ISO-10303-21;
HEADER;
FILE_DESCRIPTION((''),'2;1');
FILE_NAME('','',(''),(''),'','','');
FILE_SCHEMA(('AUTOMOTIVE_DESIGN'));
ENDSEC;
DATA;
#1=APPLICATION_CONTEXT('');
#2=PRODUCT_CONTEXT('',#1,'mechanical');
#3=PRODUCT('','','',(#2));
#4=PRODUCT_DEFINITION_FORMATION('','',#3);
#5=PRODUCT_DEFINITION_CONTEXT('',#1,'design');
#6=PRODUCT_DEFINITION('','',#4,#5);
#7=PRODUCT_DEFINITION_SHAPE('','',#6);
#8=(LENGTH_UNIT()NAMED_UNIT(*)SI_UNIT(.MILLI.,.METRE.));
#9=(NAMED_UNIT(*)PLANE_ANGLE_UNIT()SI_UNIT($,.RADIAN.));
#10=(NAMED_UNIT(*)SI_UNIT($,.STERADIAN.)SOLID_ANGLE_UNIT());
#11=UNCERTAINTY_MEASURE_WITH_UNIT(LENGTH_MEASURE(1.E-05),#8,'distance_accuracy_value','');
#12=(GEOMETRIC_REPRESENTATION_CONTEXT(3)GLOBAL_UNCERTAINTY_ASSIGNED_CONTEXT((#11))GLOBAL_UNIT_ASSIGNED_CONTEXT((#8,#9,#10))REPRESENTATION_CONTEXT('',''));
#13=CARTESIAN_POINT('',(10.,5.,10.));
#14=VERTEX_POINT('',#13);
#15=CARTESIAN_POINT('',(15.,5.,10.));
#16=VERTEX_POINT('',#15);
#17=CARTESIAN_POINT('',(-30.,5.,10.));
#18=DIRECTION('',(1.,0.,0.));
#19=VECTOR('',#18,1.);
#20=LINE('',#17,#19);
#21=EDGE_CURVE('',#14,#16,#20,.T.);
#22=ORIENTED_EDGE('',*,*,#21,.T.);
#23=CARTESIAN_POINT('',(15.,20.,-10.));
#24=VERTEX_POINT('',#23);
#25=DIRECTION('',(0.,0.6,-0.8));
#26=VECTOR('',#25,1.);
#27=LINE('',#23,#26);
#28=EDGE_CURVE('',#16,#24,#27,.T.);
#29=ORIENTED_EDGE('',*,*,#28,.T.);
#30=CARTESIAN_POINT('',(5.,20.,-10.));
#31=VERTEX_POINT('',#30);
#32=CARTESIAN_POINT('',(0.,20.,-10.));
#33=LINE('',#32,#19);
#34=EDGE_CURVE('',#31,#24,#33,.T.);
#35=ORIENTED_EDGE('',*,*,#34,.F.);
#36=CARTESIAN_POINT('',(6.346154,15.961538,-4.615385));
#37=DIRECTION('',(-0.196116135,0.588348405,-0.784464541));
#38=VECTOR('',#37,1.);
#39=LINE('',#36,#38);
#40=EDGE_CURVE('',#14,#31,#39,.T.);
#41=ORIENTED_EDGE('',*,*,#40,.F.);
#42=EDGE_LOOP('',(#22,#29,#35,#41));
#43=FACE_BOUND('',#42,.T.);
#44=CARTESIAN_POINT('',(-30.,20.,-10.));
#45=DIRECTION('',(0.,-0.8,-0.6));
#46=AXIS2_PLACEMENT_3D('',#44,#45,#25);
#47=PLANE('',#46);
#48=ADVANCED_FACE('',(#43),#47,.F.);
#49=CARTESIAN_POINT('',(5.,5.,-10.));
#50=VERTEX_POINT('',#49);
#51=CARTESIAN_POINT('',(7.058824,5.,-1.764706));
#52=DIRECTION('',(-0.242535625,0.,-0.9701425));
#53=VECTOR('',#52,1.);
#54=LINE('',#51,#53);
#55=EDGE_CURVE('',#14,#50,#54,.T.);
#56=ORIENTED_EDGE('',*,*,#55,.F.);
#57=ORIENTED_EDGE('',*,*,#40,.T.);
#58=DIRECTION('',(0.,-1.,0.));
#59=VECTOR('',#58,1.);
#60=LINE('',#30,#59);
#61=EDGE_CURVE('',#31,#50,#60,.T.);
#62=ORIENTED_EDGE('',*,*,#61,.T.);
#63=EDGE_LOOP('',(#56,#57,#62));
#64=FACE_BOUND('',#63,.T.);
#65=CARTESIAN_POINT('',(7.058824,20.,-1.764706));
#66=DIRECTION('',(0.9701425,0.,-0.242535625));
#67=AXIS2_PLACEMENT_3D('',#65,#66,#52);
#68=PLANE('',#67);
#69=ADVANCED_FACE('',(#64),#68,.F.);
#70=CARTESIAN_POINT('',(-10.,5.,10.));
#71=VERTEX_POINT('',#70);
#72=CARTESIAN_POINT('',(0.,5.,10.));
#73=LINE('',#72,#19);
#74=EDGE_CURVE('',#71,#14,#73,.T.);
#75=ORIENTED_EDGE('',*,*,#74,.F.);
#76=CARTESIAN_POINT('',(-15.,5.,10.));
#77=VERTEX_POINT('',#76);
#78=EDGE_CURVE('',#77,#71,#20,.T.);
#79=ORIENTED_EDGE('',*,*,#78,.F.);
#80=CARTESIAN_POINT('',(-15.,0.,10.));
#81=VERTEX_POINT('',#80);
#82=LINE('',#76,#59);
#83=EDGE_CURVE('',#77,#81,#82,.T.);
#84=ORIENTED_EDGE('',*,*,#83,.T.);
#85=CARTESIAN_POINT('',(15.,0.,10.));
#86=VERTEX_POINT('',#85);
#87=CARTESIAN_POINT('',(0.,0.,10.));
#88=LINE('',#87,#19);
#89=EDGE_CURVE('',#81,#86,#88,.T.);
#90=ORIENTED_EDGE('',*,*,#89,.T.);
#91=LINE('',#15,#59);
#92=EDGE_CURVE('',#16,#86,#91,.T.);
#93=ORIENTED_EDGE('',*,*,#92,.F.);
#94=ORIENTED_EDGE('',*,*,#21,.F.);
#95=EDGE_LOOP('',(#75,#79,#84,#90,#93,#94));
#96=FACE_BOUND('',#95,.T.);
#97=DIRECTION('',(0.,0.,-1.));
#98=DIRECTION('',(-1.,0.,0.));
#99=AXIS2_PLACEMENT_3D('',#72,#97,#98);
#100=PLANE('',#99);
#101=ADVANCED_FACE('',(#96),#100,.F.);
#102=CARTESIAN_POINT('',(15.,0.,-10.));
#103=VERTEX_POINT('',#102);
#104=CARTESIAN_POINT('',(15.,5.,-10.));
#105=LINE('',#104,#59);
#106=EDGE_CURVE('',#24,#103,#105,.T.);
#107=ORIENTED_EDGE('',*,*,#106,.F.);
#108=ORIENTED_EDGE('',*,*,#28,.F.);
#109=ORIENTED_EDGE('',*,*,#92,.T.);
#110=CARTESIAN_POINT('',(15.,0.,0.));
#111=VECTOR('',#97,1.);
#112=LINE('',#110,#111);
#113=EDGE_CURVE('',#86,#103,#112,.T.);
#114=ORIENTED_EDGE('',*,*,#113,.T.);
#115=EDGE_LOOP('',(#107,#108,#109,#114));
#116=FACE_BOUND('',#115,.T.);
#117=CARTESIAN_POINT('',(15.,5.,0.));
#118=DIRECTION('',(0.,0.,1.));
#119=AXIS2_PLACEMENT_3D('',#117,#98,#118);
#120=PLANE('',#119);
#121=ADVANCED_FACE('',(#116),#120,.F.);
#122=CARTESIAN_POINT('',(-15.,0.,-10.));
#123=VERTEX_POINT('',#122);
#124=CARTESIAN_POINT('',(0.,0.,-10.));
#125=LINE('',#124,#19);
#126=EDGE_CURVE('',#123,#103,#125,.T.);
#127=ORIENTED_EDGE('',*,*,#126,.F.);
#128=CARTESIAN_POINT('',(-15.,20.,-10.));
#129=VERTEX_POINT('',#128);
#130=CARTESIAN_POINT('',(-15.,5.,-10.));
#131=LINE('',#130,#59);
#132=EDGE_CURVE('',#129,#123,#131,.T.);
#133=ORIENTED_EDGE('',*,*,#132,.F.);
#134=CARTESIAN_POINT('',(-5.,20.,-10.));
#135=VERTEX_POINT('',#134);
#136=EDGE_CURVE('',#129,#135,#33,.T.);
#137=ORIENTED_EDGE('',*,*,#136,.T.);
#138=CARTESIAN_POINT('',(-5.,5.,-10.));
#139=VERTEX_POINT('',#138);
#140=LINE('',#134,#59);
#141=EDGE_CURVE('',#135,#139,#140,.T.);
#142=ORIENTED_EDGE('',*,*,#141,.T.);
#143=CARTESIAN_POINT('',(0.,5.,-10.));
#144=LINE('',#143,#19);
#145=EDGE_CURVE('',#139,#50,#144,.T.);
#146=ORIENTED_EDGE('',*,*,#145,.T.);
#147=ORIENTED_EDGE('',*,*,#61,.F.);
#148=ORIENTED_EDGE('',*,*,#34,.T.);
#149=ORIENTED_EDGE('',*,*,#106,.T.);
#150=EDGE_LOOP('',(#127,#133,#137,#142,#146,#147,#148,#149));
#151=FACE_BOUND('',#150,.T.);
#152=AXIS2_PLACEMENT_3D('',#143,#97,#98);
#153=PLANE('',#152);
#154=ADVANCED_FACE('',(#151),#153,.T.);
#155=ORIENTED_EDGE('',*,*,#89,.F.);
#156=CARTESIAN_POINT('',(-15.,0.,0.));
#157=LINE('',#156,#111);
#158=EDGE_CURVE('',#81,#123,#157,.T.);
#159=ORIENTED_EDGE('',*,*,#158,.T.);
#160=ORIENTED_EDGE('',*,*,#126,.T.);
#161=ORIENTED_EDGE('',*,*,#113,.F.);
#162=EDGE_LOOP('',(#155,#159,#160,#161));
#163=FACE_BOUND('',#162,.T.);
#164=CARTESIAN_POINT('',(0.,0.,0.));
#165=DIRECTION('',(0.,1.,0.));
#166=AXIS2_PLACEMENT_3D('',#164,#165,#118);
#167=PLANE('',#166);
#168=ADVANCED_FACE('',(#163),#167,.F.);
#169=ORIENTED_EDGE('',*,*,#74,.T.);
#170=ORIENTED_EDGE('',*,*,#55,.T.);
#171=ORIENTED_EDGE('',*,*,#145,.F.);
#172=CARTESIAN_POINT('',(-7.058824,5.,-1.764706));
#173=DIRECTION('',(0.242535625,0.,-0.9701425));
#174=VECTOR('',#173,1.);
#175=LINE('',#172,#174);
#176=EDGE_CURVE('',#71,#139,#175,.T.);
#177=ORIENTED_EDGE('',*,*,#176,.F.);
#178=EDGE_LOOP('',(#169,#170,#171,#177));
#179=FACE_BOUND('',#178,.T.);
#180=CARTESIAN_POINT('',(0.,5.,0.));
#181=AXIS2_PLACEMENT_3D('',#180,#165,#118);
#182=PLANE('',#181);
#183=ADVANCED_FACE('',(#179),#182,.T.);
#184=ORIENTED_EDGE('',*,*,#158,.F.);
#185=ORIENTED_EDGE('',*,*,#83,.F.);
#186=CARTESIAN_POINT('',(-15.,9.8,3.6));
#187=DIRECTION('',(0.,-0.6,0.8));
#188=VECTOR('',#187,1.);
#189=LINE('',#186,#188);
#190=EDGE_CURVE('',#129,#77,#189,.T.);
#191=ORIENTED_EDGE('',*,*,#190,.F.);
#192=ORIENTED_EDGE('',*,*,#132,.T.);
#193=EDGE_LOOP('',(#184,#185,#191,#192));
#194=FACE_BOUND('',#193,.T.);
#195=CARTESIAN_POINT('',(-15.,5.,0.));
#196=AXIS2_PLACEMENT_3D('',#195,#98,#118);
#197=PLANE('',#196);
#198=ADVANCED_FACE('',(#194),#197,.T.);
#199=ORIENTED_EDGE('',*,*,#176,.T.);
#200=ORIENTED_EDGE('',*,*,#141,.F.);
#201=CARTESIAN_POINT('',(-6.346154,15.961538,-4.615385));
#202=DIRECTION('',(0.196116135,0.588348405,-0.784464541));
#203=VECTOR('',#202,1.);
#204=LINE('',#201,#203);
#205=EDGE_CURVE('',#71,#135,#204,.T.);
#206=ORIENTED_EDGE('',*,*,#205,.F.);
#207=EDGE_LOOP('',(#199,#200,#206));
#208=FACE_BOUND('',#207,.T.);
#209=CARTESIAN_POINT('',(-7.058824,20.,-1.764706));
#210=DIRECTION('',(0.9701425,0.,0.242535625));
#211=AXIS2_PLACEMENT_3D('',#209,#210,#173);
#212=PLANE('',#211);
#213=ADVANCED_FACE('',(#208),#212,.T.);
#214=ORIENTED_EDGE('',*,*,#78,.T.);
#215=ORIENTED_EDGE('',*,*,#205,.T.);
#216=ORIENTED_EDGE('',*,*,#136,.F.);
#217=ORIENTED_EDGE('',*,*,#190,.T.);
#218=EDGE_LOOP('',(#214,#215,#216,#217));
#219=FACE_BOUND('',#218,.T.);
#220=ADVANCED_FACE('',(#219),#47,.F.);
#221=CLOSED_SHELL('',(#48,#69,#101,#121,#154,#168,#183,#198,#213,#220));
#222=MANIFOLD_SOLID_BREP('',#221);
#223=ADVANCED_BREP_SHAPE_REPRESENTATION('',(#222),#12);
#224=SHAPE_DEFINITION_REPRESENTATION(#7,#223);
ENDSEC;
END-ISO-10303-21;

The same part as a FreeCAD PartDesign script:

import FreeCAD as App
import Part
import Sketcher
Q = App.Units.Quantity

doc = App.newDocument("Part")
body = doc.addObject("PartDesign::Body", "Body")

sketch1 = body.newObject("Sketcher::SketchObject", "Sketch")
sketch1.AttachmentSupport = (doc.getObject("XZ_Plane"), [""])
sketch1.MapMode = "FlatFace"
sketch1.addGeometry(Part.LineSegment(App.Vector(-15, -10, 0), App.Vector(-15, 10, 0)), False)
sketch1.addGeometry(Part.LineSegment(App.Vector(-15, 10, 0), App.Vector(15, 10, 0)), False)
sketch1.addGeometry(Part.LineSegment(App.Vector(15, 10, 0), App.Vector(15, -10, 0)), False)
sketch1.addGeometry(Part.LineSegment(App.Vector(15, -10, 0), App.Vector(-15, -10, 0)), False)
sketch1.addConstraint(Sketcher.Constraint("Coincident", 0, 2, 1, 1))
sketch1.addConstraint(Sketcher.Constraint("Coincident", 1, 2, 2, 1))
sketch1.addConstraint(Sketcher.Constraint("Coincident", 2, 2, 3, 1))
sketch1.addConstraint(Sketcher.Constraint("Coincident", 3, 2, 0, 1))
sketch1.addConstraint(Sketcher.Constraint("Vertical", 0))
sketch1.addConstraint(Sketcher.Constraint("Horizontal", 1))
sketch1.addConstraint(Sketcher.Constraint("Vertical", 2))
sketch1.addConstraint(Sketcher.Constraint("Horizontal", 3))
sketch1.addConstraint(Sketcher.Constraint("Symmetric", 0, 2, 2, 2, -1, 1))
sketch1.addConstraint(Sketcher.Constraint("DistanceX", 1, 1, 1, 2, Q("30 mm")))
sketch1.addConstraint(Sketcher.Constraint("DistanceY", 0, 1, 0, 2, Q("20 mm")))
pad1 = body.newObject("PartDesign::Pad", "Pad")
pad1.Profile = sketch1
pad1.Length = 5
pad1.Reversed = True

sketch2 = body.newObject("Sketcher::SketchObject", "Sketch001")
sketch2.AttachmentSupport = (doc.getObject("XZ_Plane"), [""])
sketch2.MapMode = "FlatFace"
sketch2.addGeometry(Part.LineSegment(App.Vector(-10, 10, 0), App.Vector(-5, -10, 0)), False)
sketch2.addGeometry(Part.LineSegment(App.Vector(-5, -10, 0), App.Vector(-15, -10, 0)), False)
sketch2.addGeometry(Part.LineSegment(App.Vector(-15, -10, 0), App.Vector(-15, 10, 0)), False)
sketch2.addGeometry(Part.LineSegment(App.Vector(-15, 10, 0), App.Vector(-10, 10, 0)), False)
sketch2.addGeometry(Part.LineSegment(App.Vector(15, -10, 0), App.Vector(5, -10, 0)), False)
sketch2.addGeometry(Part.LineSegment(App.Vector(5, -10, 0), App.Vector(10, 10, 0)), False)
sketch2.addGeometry(Part.LineSegment(App.Vector(10, 10, 0), App.Vector(15, 10, 0)), False)
sketch2.addGeometry(Part.LineSegment(App.Vector(15, 10, 0), App.Vector(15, -10, 0)), False)
sketch2.addConstraint(Sketcher.Constraint("Coincident", 0, 2, 1, 1))
sketch2.addConstraint(Sketcher.Constraint("Coincident", 1, 2, 2, 1))
sketch2.addConstraint(Sketcher.Constraint("Coincident", 2, 2, 3, 1))
sketch2.addConstraint(Sketcher.Constraint("Coincident", 3, 2, 0, 1))
sketch2.addConstraint(Sketcher.Constraint("Coincident", 4, 2, 5, 1))
sketch2.addConstraint(Sketcher.Constraint("Coincident", 5, 2, 6, 1))
sketch2.addConstraint(Sketcher.Constraint("Coincident", 6, 2, 7, 1))
sketch2.addConstraint(Sketcher.Constraint("Coincident", 7, 2, 4, 1))
sketch2.addConstraint(Sketcher.Constraint("Horizontal", 1))
sketch2.addConstraint(Sketcher.Constraint("Vertical", 2))
sketch2.addConstraint(Sketcher.Constraint("Horizontal", 3))
sketch2.addConstraint(Sketcher.Constraint("Horizontal", 4))
sketch2.addConstraint(Sketcher.Constraint("Horizontal", 6))
sketch2.addConstraint(Sketcher.Constraint("Vertical", 7))
sketch2.addConstraint(Sketcher.Constraint("Symmetric", 1, 2, 6, 2, -1, 1))
sketch2.addConstraint(Sketcher.Constraint("Symmetric", 0, 2, 4, 2, -2))
sketch2.addConstraint(Sketcher.Constraint("Symmetric", 3, 2, 5, 2, -2))
sketch2.addConstraint(Sketcher.Constraint("DistanceX", 1, 2, 1, 1, Q("10 mm")))
sketch2.addConstraint(Sketcher.Constraint("DistanceX", 3, 1, 3, 2, Q("5 mm")))
sketch2.addConstraint(Sketcher.Constraint("DistanceY", 2, 1, 2, 2, Q("20 mm")))
sketch2.addConstraint(Sketcher.Constraint("DistanceX", 0, 2, -1, 1, Q("5 mm")))
pad2 = body.newObject("PartDesign::Pad", "Pad001")
pad2.Profile = sketch2
pad2.Length = 20
pad2.Reversed = True

sketch3 = body.newObject("Sketcher::SketchObject", "Sketch002")
sketch3.AttachmentSupport = (doc.getObject("YZ_Plane"), [""])
sketch3.MapMode = "FlatFace"
sketch3.AttachmentOffset = App.Placement(App.Vector(0, 0, 15), App.Rotation())
sketch3.addGeometry(Part.LineSegment(App.Vector(5, 10, 0), App.Vector(20, -10, 0)), False)
sketch3.addGeometry(Part.LineSegment(App.Vector(20, -10, 0), App.Vector(20, 10, 0)), False)
sketch3.addGeometry(Part.LineSegment(App.Vector(20, 10, 0), App.Vector(5, 10, 0)), False)
sketch3.addConstraint(Sketcher.Constraint("Coincident", 0, 2, 1, 1))
sketch3.addConstraint(Sketcher.Constraint("Coincident", 1, 2, 2, 1))
sketch3.addConstraint(Sketcher.Constraint("Coincident", 2, 2, 0, 1))
sketch3.addConstraint(Sketcher.Constraint("Vertical", 1))
sketch3.addConstraint(Sketcher.Constraint("Horizontal", 2))
sketch3.addConstraint(Sketcher.Constraint("DistanceX", 2, 2, 2, 1, Q("15 mm")))
sketch3.addConstraint(Sketcher.Constraint("DistanceY", 1, 1, 1, 2, Q("20 mm")))
sketch3.addConstraint(Sketcher.Constraint("DistanceX", -1, 1, 0, 2, Q("20 mm")))
sketch3.addConstraint(Sketcher.Constraint("DistanceY", 0, 2, -1, 1, Q("10 mm")))
pocket1 = body.newObject("PartDesign::Pocket", "Pocket")
pocket1.Profile = sketch3
pocket1.Length = 45

doc.recompute()
